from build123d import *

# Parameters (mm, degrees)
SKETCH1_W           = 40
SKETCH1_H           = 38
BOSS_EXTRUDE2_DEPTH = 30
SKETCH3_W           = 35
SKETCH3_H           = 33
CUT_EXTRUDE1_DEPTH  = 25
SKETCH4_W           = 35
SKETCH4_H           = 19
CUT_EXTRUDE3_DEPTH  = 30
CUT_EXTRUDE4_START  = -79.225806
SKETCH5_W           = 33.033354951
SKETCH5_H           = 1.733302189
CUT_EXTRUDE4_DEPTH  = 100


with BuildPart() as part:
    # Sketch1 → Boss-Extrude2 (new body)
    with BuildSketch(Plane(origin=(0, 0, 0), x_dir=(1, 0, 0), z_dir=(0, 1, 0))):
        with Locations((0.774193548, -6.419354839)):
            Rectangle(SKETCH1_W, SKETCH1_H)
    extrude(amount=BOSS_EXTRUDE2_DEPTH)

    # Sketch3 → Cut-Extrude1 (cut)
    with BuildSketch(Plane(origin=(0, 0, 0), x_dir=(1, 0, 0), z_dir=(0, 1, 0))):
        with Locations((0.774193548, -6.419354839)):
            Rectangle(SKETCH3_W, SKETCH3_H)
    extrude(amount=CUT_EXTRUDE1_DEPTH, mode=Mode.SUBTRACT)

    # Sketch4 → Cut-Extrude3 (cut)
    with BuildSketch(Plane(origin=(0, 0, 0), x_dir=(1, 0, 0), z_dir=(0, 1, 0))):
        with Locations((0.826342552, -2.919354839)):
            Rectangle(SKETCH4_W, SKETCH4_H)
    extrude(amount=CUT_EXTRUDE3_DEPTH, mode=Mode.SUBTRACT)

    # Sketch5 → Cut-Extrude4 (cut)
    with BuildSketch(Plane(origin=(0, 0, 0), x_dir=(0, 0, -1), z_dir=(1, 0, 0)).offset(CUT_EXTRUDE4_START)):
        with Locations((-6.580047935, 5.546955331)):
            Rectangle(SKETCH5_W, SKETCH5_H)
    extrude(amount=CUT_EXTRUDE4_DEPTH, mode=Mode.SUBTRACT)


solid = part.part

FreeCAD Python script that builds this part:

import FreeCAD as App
import Part
import Sketcher
from FreeCAD import Vector


def add_polygon(sketch, points):
    """Adds a closed chain of lines whose ends are joined by coincident constraints."""
    first, n = sketch.GeometryCount, len(points)
    for a, b in zip(points, points[1:] + points[:1]):
        sketch.addGeometry(Part.LineSegment(App.Vector(*a, 0), App.Vector(*b, 0)), False)
    for i in range(n):
        sketch.addConstraint(Sketcher.Constraint("Coincident", first + i, 2, first + (i + 1) % n, 1))

doc = App.newDocument("Part")
body = doc.addObject("PartDesign::Body", "Body")

sketch1 = doc.addObject("Sketcher::SketchObject", "Sketch")
body.addObject(sketch1)
sketch1.AttachmentSupport = (doc.XZ_Plane, [""])
sketch1.MapMode = "FlatFace"
add_polygon(sketch1, [(-19.225806, -12.580645), (-19.225806, 25.419355), (20.774194, 25.419355), (20.774194, -12.580645)])
sketch1.addConstraint(Sketcher.Constraint("Vertical", 0))
sketch1.addConstraint(Sketcher.Constraint("Horizontal", 1))
sketch1.addConstraint(Sketcher.Constraint("Vertical", 2))
sketch1.addConstraint(Sketcher.Constraint("Horizontal", 3))
sketch1.addConstraint(Sketcher.Constraint("DistanceX", 1, 1, 1, 2, 40.0))
sketch1.addConstraint(Sketcher.Constraint("DistanceY", 0, 1, 0, 2, 38.0))
sketch1.addConstraint(Sketcher.Constraint("DistanceX", 0, 2, -1, 1, 19.225806))
sketch1.addConstraint(Sketcher.Constraint("DistanceY", -1, 1, 0, 2, 25.419355))
pad1 = doc.addObject("PartDesign::Pad", "Pad")
body.addObject(pad1)
pad1.Profile = sketch1
pad1.Length = 30
pad1.Reversed = True

sketch2 = doc.addObject("Sketcher::SketchObject", "Sketch001")
body.addObject(sketch2)
sketch2.AttachmentSupport = (doc.XZ_Plane, [""])
sketch2.MapMode = "FlatFace"
add_polygon(sketch2, [(-16.725806, -10.080645), (-16.725806, 22.919355), (18.274194, 22.919355), (18.274194, -10.080645)])
sketch2.addConstraint(Sketcher.Constraint("Vertical", 0))
sketch2.addConstraint(Sketcher.Constraint("Horizontal", 1))
sketch2.addConstraint(Sketcher.Constraint("Vertical", 2))
sketch2.addConstraint(Sketcher.Constraint("Horizontal", 3))
sketch2.addConstraint(Sketcher.Constraint("DistanceX", 1, 1, 1, 2, 35.0))
sketch2.addConstraint(Sketcher.Constraint("DistanceY", 0, 1, 0, 2, 33.0))
sketch2.addConstraint(Sketcher.Constraint("DistanceX", 0, 2, -1, 1, 16.725806))
sketch2.addConstraint(Sketcher.Constraint("DistanceY", -1, 1, 0, 2, 22.919355))
pocket1 = doc.addObject("PartDesign::Pocket", "Pocket")
body.addObject(pocket1)
pocket1.Profile = sketch2
pocket1.Length = 25

sketch3 = doc.addObject("Sketcher::SketchObject", "Sketch002")
body.addObject(sketch3)
sketch3.AttachmentSupport = (doc.XZ_Plane, [""])
sketch3.MapMode = "FlatFace"
add_polygon(sketch3, [(-16.673657, -6.580645), (-16.673657, 12.419355), (18.326343, 12.419355), (18.326343, -6.580645)])
sketch3.addConstraint(Sketcher.Constraint("Vertical", 0))
sketch3.addConstraint(Sketcher.Constraint("Horizontal", 1))
sketch3.addConstraint(Sketcher.Constraint("Vertical", 2))
sketch3.addConstraint(Sketcher.Constraint("Horizontal", 3))
sketch3.addConstraint(Sketcher.Constraint("DistanceX", 1, 1, 1, 2, 35.0))
sketch3.addConstraint(Sketcher.Constraint("DistanceY", 0, 1, 0, 2, 19.0))
sketch3.addConstraint(Sketcher.Constraint("DistanceX", 0, 2, -1, 1, 16.673657))
sketch3.addConstraint(Sketcher.Constraint("DistanceY", -1, 1, 0, 2, 12.419355))
pocket2 = doc.addObject("PartDesign::Pocket", "Pocket001")
body.addObject(pocket2)
pocket2.Profile = sketch3
pocket2.Length = 30

sketch4 = doc.addObject("Sketcher::SketchObject", "Sketch003")
body.addObject(sketch4)
sketch4.AttachmentSupport = (doc.YZ_Plane, [""])
sketch4.MapMode = "FlatFace"
sketch4.AttachmentOffset = App.Placement(Vector(0, 0, -79.225806), App.Rotation())
add_polygon(sketch4, [(6.413606, 23.096725), (4.680304, 23.096725), (4.680304, -9.93663), (6.413606, -9.93663)])
sketch4.addConstraint(Sketcher.Constraint("Horizontal", 0))
sketch4.addConstraint(Sketcher.Constraint("Vertical", 1))
sketch4.addConstraint(Sketcher.Constraint("Horizontal", 2))
sketch4.addConstraint(Sketcher.Constraint("Vertical", 3))
sketch4.addConstraint(Sketcher.Constraint("DistanceX", 0, 2, 0, 1, 1.733302))
sketch4.addConstraint(Sketcher.Constraint("DistanceY", 1, 2, 1, 1, 33.033355))
sketch4.addConstraint(Sketcher.Constraint("DistanceY", 1, 2, -1, 1, 9.93663))
sketch4.addConstraint(Sketcher.Constraint("DistanceX", -1, 1, 0, 2, 4.680304))
pocket3 = doc.addObject("PartDesign::Pocket", "Pocket002")
body.addObject(pocket3)
pocket3.Profile = sketch4
pocket3.Length = 100
pocket3.Reversed = True

doc.recompute()
